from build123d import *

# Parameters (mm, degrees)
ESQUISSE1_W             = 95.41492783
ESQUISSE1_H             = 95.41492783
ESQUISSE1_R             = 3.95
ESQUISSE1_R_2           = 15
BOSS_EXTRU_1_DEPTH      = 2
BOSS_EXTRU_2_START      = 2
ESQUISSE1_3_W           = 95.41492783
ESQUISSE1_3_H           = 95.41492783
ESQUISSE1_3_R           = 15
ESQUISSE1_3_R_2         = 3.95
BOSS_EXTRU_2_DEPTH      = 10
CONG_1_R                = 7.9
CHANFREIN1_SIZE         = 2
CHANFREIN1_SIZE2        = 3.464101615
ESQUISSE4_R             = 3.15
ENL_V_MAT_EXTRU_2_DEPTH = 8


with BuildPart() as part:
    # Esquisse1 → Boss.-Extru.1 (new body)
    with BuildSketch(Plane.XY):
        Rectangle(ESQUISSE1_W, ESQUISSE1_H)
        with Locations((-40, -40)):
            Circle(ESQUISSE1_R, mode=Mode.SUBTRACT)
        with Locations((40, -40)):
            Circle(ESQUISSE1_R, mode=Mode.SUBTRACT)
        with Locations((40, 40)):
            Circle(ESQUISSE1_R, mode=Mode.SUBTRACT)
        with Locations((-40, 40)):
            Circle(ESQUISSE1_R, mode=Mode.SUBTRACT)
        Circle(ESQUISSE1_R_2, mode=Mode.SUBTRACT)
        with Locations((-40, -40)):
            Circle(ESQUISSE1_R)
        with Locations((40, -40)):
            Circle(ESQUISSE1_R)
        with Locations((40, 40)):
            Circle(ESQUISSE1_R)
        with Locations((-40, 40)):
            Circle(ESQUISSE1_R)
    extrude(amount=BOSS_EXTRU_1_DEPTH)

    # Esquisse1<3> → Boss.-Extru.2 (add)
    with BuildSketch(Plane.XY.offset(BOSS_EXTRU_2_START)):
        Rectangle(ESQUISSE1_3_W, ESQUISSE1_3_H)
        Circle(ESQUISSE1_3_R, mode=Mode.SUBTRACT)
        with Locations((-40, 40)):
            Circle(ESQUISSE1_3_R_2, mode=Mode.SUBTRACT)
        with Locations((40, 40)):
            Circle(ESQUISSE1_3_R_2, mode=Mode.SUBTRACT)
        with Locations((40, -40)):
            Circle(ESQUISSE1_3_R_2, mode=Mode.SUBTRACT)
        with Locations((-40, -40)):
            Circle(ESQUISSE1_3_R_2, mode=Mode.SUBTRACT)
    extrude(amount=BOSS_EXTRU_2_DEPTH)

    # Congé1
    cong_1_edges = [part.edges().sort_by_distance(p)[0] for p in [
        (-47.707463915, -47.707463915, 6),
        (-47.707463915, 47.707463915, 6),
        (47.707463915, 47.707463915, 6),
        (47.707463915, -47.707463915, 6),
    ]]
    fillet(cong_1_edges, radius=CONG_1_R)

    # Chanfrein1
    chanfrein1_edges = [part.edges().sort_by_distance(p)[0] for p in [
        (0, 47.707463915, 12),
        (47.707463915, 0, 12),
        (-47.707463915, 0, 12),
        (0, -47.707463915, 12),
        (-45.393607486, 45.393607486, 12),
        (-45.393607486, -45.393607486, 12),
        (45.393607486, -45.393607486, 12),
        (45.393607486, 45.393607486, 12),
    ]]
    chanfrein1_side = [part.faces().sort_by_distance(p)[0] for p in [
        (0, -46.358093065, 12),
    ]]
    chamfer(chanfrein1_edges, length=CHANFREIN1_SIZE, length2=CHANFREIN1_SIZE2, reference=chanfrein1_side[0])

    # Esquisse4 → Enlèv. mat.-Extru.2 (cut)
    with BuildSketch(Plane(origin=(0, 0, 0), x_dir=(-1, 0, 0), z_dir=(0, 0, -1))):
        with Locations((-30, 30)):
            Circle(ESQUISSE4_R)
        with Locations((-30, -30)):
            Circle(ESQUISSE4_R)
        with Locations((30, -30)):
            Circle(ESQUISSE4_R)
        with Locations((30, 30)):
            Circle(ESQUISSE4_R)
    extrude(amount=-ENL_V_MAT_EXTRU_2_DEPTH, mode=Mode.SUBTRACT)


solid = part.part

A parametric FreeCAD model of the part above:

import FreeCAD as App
import Part
import Sketcher


def edges_at(feature, points):
    """Names of the edges that pass closest to the given points."""
    edges = feature.Shape.Edges
    near = lambda p: min(range(len(edges)), key=lambda i: edges[i].distToShape(Part.Vertex(*p))[0])
    return sorted({f"Edge{near(p) + 1}" for p in points})

doc = App.newDocument("Part")
body = doc.addObject("PartDesign::Body", "Body")

# Sketch on XY plane
sketch1 = body.newObject("Sketcher::SketchObject", "Sketch")
sketch1.AttachmentSupport = (doc.getObject("XY_Plane"), [""])
sketch1.MapMode = "FlatFace"
sketch1.addGeometry(Part.LineSegment(App.Vector(-48, 48, 0), App.Vector(-48, -48, 0)), False)
sketch1.addGeometry(Part.LineSegment(App.Vector(-48, -48, 0), App.Vector(48, -48, 0)), False)
sketch1.addGeometry(Part.LineSegment(App.Vector(48, -48, 0), App.Vector(48, 48, 0)), False)
sketch1.addGeometry(Part.LineSegment(App.Vector(48, 48, 0), App.Vector(-48, 48, 0)), False)
sketch1.addGeometry(Part.Circle(App.Vector(0, 0, 0), App.Vector(0, 0, 1), 15), False)
sketch1.addConstraint(Sketcher.Constraint("Coincident", 0, 2, 1, 1))
sketch1.addConstraint(Sketcher.Constraint("Coincident", 1, 2, 2, 1))
sketch1.addConstraint(Sketcher.Constraint("Coincident", 2, 2, 3, 1))
sketch1.addConstraint(Sketcher.Constraint("Coincident", 3, 2, 0, 1))
sketch1.addConstraint(Sketcher.Constraint("Vertical", 0))
sketch1.addConstraint(Sketcher.Constraint("Horizontal", 1))
sketch1.addConstraint(Sketcher.Constraint("Vertical", 2))
sketch1.addConstraint(Sketcher.Constraint("Horizontal", 3))
sketch1.addConstraint(Sketcher.Constraint("Coincident", 4, 3, -1, 1))
sketch1.addConstraint(Sketcher.Constraint("Symmetric", 0, 2, 2, 2, -1, 1))
sketch1.addConstraint(Sketcher.Constraint("Equal", 3, 0))
sketch1.addConstraint(Sketcher.Constraint("Diameter", 4, 30.0))
sketch1.addConstraint(Sketcher.Constraint("DistanceX", 1, 1, 1, 2, 95.414928))
pad1 = body.newObject("PartDesign::Pad", "Pad")
pad1.Profile = sketch1
pad1.Length = 2

# Sketch on XY plane
sketch2 = body.newObject("Sketcher::SketchObject", "Sketch001")
sketch2.AttachmentSupport = (doc.getObject("XY_Plane"), [""])
sketch2.MapMode = "FlatFace"
sketch2.AttachmentOffset = App.Placement(App.Vector(0, 0, 2), App.Rotation())
sketch2.addGeometry(Part.LineSegment(App.Vector(-47.7, 47.7, 0), App.Vector(-47.7, -47.7, 0)), False)
sketch2.addGeometry(Part.LineSegment(App.Vector(-47.7, -47.7, 0), App.Vector(47.7, -47.7, 0)), False)
sketch2.addGeometry(Part.LineSegment(App.Vector(47.7, -47.7, 0), App.Vector(47.7, 47.7, 0)), False)
sketch2.addGeometry(Part.LineSegment(App.Vector(47.7, 47.7, 0), App.Vector(-47.7, 47.7, 0)), False)
sketch2.addGeometry(Part.Circle(App.Vector(-40, -40, 0), App.Vector(0, 0, 1), 4), False)
sketch2.addGeometry(Part.Circle(App.Vector(40, -40, 0), App.Vector(0, 0, 1), 4), False)
sketch2.addGeometry(Part.Circle(App.Vector(-40, 40, 0), App.Vector(0, 0, 1), 4), False)
sketch2.addGeometry(Part.Circle(App.Vector(0, 0, 0), App.Vector(0, 0, 1), 15), False)
sketch2.addGeometry(Part.Circle(App.Vector(40, 40, 0), App.Vector(0, 0, 1), 4), False)
sketch2.addConstraint(Sketcher.Constraint("Coincident", 0, 2, 1, 1))
sketch2.addConstraint(Sketcher.Constraint("Coincident", 1, 2, 2, 1))
sketch2.addConstraint(Sketcher.Constraint("Coincident", 2, 2, 3, 1))
sketch2.addConstraint(Sketcher.Constraint("Coincident", 3, 2, 0, 1))
sketch2.addConstraint(Sketcher.Constraint("Vertical", 0))
sketch2.addConstraint(Sketcher.Constraint("Horizontal", 1))
sketch2.addConstraint(Sketcher.Constraint("Vertical", 2))
sketch2.addConstraint(Sketcher.Constraint("Horizontal", 3))
sketch2.addConstraint(Sketcher.Constraint("Coincident", 7, 3, -1, 1))
sketch2.addConstraint(Sketcher.Constraint("Equal", 4, 5))
sketch2.addConstraint(Sketcher.Constraint("Equal", 5, 6))
sketch2.addConstraint(Sketcher.Constraint("Equal", 6, 8))
sketch2.addConstraint(Sketcher.Constraint("Symmetric", 5, 3, 6, 3, -1, 1))
sketch2.addConstraint(Sketcher.Constraint("Symmetric", 4, 3, 8, 3, -1, 1))
sketch2.addConstraint(Sketcher.Constraint("Symmetric", 0, 2, 2, 2, -1, 1))
sketch2.addConstraint(Sketcher.Constraint("Symmetric", 4, 3, 5, 3, -2))
sketch2.addConstraint(Sketcher.Constraint("Equal", 3, 0))
sketch2.addConstraint(Sketcher.Constraint("Diameter", 7, 30.0))
sketch2.addConstraint(Sketcher.Constraint("Diameter", 4, 7.9))
sketch2.addConstraint(Sketcher.Constraint("DistanceX", 4, 3, -1, 1, 40.0))
sketch2.addConstraint(Sketcher.Constraint("DistanceY", 4, 3, -1, 1, 40.0))
sketch2.addConstraint(Sketcher.Constraint("DistanceX", 1, 1, 1, 2, 95.414928))
pad2 = body.newObject("PartDesign::Pad", "Pad001")
pad2.Profile = sketch2
pad2.Length = 10
doc.recompute()

fillet = body.newObject("PartDesign::Fillet", "Fillet")
fillet.Base = (pad2, edges_at(pad2, [
    (-47.707, -47.707, 6),
    (-47.707, 47.707, 6),
    (47.707, 47.707, 6),
    (47.707, -47.707, 6),
]))
fillet.Radius = 7.9
doc.recompute()

chamfer = body.newObject("PartDesign::Chamfer", "Chamfer")
chamfer.Base = (fillet, edges_at(fillet, [
    (0, 47.707, 12),
    (47.707, 0, 12),
    (-47.707, 0, 12),
    (0, -47.707, 12),
    (-45.394, 45.394, 12),
    (-45.394, -45.394, 12),
    (45.394, -45.394, 12),
    (45.394, 45.394, 12),
]))
chamfer.ChamferType = "Two distances"
chamfer.Size = 2
chamfer.Size2 = 3.464102
chamfer.FlipDirection = True

# Sketch on XY plane
sketch3 = body.newObject("Sketcher::SketchObject", "Sketch002")
sketch3.AttachmentSupport = (doc.getObject("XY_Plane"), [""])
sketch3.MapMode = "FlatFace"
sketch3.addGeometry(Part.Circle(App.Vector(30, 30, 0), App.Vector(0, 0, 1), 3.1), False)
sketch3.addGeometry(Part.Circle(App.Vector(30, -30, 0), App.Vector(0, 0, 1), 3.1), False)
sketch3.addGeometry(Part.Circle(App.Vector(-30, -30, 0), App.Vector(0, 0, 1), 3.1), False)
sketch3.addGeometry(Part.Circle(App.Vector(-30, 30, 0), App.Vector(0, 0, 1), 3.1), False)
sketch3.addConstraint(Sketcher.Constraint("Equal", 0, 1))
sketch3.addConstraint(Sketcher.Constraint("Equal", 1, 2))
sketch3.addConstraint(Sketcher.Constraint("Equal", 2, 3))
sketch3.addConstraint(Sketcher.Constraint("Symmetric", 0, 3, 2, 3, -1, 1))
sketch3.addConstraint(Sketcher.Constraint("Symmetric", 1, 3, 3, 3, -1, 1))
sketch3.addConstraint(Sketcher.Constraint("Symmetric", 1, 3, 2, 3, -2))
sketch3.addConstraint(Sketcher.Constraint("Diameter", 0, 6.3))
sketch3.addConstraint(Sketcher.Constraint("DistanceX", -1, 1, 0, 3, 30.0))
sketch3.addConstraint(Sketcher.Constraint("DistanceY", -1, 1, 0, 3, 30.0))
pocket1 = body.newObject("PartDesign::Pocket", "Pocket")
pocket1.Profile = sketch3
pocket1.Length = 8
pocket1.Reversed = True

doc.recompute()
